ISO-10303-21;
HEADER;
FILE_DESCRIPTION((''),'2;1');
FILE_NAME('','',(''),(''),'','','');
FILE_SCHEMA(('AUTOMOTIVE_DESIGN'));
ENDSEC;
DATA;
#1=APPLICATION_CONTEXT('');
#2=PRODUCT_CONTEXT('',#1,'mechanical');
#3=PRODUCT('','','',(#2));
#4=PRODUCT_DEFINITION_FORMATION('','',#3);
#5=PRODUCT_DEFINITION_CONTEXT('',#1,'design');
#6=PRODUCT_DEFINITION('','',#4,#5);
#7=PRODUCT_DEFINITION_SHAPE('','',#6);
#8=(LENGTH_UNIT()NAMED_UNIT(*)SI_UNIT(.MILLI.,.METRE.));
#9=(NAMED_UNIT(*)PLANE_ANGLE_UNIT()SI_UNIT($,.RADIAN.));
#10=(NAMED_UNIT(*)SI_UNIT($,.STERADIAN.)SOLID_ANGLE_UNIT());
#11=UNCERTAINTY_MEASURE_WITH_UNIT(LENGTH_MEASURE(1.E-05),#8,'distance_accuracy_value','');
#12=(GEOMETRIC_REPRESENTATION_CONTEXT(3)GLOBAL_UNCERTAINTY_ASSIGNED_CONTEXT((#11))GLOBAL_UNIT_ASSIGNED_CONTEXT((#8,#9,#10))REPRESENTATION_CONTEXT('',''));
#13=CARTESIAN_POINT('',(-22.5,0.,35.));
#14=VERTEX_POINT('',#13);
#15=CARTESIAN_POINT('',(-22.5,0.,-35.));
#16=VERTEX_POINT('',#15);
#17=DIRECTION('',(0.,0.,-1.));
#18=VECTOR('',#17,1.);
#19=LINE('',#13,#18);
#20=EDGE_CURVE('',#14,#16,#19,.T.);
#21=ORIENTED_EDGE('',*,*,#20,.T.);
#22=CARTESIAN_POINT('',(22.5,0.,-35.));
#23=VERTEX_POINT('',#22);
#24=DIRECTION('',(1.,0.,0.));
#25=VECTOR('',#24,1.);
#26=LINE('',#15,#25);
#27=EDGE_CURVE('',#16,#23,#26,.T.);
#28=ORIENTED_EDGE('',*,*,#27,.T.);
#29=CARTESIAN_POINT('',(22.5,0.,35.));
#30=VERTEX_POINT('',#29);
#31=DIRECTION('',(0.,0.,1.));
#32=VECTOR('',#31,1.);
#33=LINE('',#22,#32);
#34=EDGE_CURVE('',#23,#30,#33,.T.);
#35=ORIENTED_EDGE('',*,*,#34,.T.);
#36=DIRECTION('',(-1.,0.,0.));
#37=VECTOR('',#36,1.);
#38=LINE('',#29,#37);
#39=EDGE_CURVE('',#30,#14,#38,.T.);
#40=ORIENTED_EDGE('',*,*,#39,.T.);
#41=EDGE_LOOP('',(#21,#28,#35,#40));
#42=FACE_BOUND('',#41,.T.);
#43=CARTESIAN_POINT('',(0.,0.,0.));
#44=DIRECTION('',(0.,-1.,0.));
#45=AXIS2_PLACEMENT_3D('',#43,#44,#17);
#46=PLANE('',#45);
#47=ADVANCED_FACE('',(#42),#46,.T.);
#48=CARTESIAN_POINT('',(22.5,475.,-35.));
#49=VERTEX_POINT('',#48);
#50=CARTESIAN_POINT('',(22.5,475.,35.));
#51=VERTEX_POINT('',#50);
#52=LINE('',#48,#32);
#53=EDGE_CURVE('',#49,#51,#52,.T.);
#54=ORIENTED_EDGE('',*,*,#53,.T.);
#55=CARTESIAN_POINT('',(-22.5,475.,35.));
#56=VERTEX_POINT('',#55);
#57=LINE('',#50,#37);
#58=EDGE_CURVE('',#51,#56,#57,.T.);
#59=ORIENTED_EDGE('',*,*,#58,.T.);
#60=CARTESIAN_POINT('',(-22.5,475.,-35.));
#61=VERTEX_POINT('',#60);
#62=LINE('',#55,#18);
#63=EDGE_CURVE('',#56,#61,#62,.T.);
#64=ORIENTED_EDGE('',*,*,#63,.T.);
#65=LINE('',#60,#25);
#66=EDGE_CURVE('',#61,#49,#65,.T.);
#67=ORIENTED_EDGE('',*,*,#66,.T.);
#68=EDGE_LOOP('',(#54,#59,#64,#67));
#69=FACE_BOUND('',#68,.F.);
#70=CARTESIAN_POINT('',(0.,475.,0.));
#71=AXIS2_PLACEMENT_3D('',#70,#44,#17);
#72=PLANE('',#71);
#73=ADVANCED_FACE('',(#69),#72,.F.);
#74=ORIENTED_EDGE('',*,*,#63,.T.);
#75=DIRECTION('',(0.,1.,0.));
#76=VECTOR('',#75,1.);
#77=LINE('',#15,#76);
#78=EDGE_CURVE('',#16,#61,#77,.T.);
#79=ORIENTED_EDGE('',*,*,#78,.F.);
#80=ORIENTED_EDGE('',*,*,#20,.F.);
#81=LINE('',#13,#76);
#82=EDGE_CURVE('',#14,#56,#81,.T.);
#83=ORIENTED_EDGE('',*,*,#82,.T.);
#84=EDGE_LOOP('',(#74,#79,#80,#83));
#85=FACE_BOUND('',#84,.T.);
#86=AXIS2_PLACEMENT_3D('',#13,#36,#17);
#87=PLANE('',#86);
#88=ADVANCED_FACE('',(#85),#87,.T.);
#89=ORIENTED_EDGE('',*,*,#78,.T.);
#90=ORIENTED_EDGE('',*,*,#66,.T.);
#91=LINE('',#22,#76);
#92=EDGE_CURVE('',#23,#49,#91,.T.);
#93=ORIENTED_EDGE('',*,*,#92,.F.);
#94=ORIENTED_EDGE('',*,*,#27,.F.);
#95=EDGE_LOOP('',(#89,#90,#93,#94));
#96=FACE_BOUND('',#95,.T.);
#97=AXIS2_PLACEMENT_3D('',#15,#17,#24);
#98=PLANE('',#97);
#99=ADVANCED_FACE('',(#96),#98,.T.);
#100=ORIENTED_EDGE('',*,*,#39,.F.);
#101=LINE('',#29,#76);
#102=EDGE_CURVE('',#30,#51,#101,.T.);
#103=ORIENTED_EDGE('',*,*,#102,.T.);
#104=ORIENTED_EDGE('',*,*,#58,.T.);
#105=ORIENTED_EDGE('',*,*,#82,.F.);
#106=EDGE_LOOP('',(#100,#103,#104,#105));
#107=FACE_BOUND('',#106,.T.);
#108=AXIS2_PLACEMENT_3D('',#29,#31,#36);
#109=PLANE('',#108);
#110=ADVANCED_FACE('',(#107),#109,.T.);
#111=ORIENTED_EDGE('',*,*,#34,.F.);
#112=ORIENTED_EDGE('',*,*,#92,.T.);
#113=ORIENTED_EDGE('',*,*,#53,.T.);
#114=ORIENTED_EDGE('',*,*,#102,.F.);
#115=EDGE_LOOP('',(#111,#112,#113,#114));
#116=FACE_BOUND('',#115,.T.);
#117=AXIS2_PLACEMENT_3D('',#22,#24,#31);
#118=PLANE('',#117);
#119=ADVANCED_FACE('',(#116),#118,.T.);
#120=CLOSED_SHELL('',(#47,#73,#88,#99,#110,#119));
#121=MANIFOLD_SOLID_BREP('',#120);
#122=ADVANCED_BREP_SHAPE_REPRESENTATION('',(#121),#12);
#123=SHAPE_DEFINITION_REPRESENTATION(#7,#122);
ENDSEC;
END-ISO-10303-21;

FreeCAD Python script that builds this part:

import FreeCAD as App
import Part
import Sketcher

V = App.Vector


def add_polygon(sketch, points):
    """Adds a closed chain of lines whose ends are joined by coincident constraints."""
    first, n = sketch.GeometryCount, len(points)
    for a, b in zip(points, points[1:] + points[:1]):
        sketch.addGeometry(Part.LineSegment(App.Vector(*a, 0), App.Vector(*b, 0)), False)
    for i in range(n):
        sketch.addConstraint(Sketcher.Constraint("Coincident", first + i, 2, first + (i + 1) % n, 1))

doc = App.newDocument("Part")
body = doc.addObject("PartDesign::Body", "Body")

# Sketch on XZ plane
sketch1 = body.newObject("Sketcher::SketchObject", "Sketch")
sketch1.AttachmentSupport = (doc.getObject("XZ_Plane"), [""])
sketch1.MapMode = "FlatFace"
add_polygon(sketch1, [(-22.5, 35), (-22.5, -35), (22.5, -35), (22.5, 35)])  # lines 0-3
sketch1.addConstraint([
    Sketcher.Constraint("Vertical", 0),
    Sketcher.Constraint("Horizontal", 1),
    Sketcher.Constraint("Vertical", 2),
    Sketcher.Constraint("Horizontal", 3),
    Sketcher.Constraint("Symmetric", 0, 2, 2, 2, -1, 1),
    Sketcher.Constraint("DistanceX", 1, 1, 1, 2, 45.0),
    Sketcher.Constraint("DistanceY", 0, 2, 0, 1, 70.0),
])
pad1 = body.newObject("PartDesign::Pad", "Pad")
pad1.Profile = sketch1
pad1.Length = 475
pad1.Reversed = True

doc.recompute()
